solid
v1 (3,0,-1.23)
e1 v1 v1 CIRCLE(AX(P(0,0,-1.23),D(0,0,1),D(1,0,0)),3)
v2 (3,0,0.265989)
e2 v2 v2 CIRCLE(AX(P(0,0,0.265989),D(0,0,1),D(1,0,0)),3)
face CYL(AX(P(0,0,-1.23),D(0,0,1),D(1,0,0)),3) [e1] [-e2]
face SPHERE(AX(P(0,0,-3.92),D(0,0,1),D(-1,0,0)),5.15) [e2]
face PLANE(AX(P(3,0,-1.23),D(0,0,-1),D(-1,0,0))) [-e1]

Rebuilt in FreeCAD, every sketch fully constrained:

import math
import FreeCAD as App
import Part
import Sketcher

doc = App.newDocument("Part")
body = doc.addObject("PartDesign::Body", "Body")

# Sketch on XZ plane
sketch1 = doc.addObject("Sketcher::SketchObject", "Sketch")
body.addObject(sketch1)
sketch1.AttachmentSupport = (doc.XZ_Plane, [""])
sketch1.MapMode = "FlatFace"
sketch1.addGeometry([
    Part.LineSegment(App.Vector(3, -1.23, 0), App.Vector(0, -1.23, 0)),
    Part.LineSegment(App.Vector(0, -1.23, 0), App.Vector(0, 1.23, 0)),
    Part.ArcOfCircle(Part.Circle(App.Vector(0, -3.92, 0), App.Vector(0, 0, 1), 5.15), math.radians(54.371717), math.radians(90)),
    Part.LineSegment(App.Vector(3, 0.265989, 0), App.Vector(3, -1.23, 0)),
], False)
sketch1.addConstraint([
    Sketcher.Constraint("Coincident", 0, 2, 1, 1),
    Sketcher.Constraint("Coincident", 1, 2, 2, 2),
    Sketcher.Constraint("Coincident", 2, 1, 3, 1),
    Sketcher.Constraint("Coincident", 3, 2, 0, 1),
    Sketcher.Constraint("Horizontal", 0),
    Sketcher.Constraint("Vertical", 1),
    Sketcher.Constraint("Vertical", 3),
    Sketcher.Constraint("Symmetric", 0, 2, 1, 2, -1, 1),
    Sketcher.Constraint("PointOnObject", 2, 3, -2),
    Sketcher.Constraint("DistanceX", 0, 2, 0, 1, 3.0),
    Sketcher.Constraint("Radius", 2, 5.15),
    Sketcher.Constraint("DistanceY", 1, 1, 1, 2, 2.46),
])
revolution = doc.addObject("PartDesign::Revolution", "Revolution")
body.addObject(revolution)
revolution.Profile = sketch1
revolution.ReferenceAxis = (sketch1, ["V_Axis"])
revolution.Angle = 360

doc.recompute()
